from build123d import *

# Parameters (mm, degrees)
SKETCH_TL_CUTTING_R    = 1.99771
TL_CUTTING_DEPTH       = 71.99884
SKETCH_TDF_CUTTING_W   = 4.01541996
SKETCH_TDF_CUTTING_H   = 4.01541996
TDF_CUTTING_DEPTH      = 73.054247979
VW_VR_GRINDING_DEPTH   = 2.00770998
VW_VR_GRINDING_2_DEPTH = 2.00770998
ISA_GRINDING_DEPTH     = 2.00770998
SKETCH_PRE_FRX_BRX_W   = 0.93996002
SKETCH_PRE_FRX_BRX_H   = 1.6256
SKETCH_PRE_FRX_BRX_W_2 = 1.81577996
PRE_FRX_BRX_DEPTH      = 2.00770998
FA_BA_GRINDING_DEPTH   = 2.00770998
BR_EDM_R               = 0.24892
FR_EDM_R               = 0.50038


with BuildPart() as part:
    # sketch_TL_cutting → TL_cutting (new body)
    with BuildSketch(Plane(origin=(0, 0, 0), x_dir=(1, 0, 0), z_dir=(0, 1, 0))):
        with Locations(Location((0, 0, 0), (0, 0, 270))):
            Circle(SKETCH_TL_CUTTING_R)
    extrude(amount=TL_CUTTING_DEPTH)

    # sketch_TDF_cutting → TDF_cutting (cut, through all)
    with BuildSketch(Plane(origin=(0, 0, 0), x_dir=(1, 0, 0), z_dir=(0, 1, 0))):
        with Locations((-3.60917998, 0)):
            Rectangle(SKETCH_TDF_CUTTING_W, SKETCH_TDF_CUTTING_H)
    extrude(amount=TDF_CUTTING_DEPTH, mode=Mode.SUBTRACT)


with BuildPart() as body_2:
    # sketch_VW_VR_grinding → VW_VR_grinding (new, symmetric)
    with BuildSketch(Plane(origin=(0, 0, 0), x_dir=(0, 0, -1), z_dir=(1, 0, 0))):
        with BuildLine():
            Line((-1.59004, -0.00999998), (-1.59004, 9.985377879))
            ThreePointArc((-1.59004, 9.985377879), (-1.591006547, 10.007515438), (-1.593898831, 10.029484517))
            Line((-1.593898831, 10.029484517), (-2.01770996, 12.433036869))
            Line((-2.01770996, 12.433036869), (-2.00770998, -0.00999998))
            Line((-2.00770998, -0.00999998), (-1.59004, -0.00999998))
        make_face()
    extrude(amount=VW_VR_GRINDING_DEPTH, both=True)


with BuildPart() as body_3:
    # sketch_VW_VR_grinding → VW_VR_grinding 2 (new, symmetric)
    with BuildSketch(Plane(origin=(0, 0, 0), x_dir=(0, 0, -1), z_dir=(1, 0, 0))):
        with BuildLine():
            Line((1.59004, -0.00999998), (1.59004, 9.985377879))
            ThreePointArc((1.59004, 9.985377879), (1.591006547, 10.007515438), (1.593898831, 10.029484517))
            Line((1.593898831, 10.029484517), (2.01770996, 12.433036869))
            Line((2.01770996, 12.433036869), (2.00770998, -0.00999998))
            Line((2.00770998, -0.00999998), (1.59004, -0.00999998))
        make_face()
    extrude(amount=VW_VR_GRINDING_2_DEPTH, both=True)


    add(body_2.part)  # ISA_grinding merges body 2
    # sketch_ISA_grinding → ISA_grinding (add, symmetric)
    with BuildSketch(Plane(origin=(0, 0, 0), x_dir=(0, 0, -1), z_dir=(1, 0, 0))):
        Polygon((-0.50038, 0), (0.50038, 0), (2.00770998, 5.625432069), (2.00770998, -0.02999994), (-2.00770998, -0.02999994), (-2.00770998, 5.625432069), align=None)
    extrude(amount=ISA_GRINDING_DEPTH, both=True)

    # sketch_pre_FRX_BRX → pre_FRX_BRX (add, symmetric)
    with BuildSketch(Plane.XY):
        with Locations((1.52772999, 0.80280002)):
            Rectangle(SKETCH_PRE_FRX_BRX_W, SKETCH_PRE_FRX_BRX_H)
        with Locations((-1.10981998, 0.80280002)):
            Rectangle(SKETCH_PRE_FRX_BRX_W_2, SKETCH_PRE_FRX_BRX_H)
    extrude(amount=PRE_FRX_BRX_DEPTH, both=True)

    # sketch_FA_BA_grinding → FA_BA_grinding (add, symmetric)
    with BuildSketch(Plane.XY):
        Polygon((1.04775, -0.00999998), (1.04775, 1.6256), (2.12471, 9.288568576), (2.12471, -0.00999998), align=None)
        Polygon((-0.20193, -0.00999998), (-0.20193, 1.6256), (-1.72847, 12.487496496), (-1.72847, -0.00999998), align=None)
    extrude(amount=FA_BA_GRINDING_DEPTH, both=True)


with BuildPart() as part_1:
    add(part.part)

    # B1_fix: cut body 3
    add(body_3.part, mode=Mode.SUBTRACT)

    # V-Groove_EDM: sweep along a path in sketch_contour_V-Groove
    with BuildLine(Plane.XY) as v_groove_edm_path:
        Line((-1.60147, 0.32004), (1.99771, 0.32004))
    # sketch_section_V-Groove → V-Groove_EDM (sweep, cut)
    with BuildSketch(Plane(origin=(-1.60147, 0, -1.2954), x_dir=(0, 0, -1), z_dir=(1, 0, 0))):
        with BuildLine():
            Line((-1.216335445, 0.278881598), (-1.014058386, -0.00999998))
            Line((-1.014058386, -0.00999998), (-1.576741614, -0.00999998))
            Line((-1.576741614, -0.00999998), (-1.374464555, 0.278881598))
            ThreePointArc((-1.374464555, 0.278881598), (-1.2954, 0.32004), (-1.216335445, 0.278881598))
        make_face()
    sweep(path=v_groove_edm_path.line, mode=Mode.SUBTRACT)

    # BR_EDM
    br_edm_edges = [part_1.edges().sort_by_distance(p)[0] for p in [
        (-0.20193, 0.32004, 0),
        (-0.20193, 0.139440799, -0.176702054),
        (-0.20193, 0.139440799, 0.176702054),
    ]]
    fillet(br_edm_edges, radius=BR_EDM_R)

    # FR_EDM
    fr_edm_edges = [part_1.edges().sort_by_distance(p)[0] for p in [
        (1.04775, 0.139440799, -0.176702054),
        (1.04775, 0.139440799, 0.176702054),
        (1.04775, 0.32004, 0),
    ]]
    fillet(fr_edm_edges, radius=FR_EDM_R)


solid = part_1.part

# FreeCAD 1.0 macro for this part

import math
import FreeCAD as App
import Part
import Sketcher

V = App.Vector
Q = App.Units.Quantity


def edges_at(feature, points):
    """Names of the edges that pass closest to the given points."""
    edges = feature.Shape.Edges
    near = lambda p: min(range(len(edges)), key=lambda i: edges[i].distToShape(Part.Vertex(*p))[0])
    return sorted({f"Edge{near(p) + 1}" for p in points})

doc = App.newDocument("Part")
params = doc.addObject("Spreadsheet::Sheet", "Params")
for row, (alias, value) in enumerate([
    ("pad1_length", "2.8346 in"),
    ("sketch3_radius", "0.01 in"),
    ("pad2_length", "4.01542 mm"),
    ("sketch4_radius", "0.01 in"),
    ("pad3_length", "4.01542 mm"),
    ("pad4_length", "4.01542 mm"),
    ("sketch6_height", "0.064 in"),
    ("pad5_length", "4.01542 mm"),
    ("pad6_length", "4.01542 mm"),
    ("fillet_radius", "0.0098 in"),
    ("fillet2_radius", "0.0197 in"),
], start=1):
    params.set(f"A{row}", alias)
    params.set(f"B{row}", "=" + value)
    params.setAlias(f"B{row}", alias)

body = doc.addObject("PartDesign::Body", "Body")

sketch1 = doc.addObject("Sketcher::SketchObject", "Sketch")
body.addObject(sketch1)
sketch1.AttachmentSupport = (doc.XZ_Plane, [""])
sketch1.MapMode = "FlatFace"
sketch1.addGeometry(Part.Circle(V(0, 0, 0), V(0, 0, 1), 1.99771), False)
sketch1.addConstraint([
    Sketcher.Constraint("Coincident", 0, 3, -1, 1),
    Sketcher.Constraint("Diameter", 0, Q("0.1573 in")),
])
pad1 = doc.addObject("PartDesign::Pad", "Pad")
body.addObject(pad1)
pad1.Profile = sketch1
pad1.setExpression("Length", "Params.pad1_length")
pad1.Reversed = True

sketch2 = doc.addObject("Sketcher::SketchObject", "Sketch001")
body.addObject(sketch2)
sketch2.AttachmentSupport = (doc.XZ_Plane, [""])
sketch2.MapMode = "FlatFace"
sketch2.addGeometry([
    Part.LineSegment(V(-5.61689, -2.00771, 0), V(-5.61689, 2.00771, 0)),
    Part.LineSegment(V(-5.61689, 2.00771, 0), V(-1.60147, 2.00771, 0)),
    Part.LineSegment(V(-1.60147, 2.00771, 0), V(-1.60147, -2.00771, 0)),
    Part.LineSegment(V(-1.60147, -2.00771, 0), V(-5.61689, -2.00771, 0)),
], False)
sketch2.addConstraint([
    Sketcher.Constraint("Coincident", 0, 2, 1, 1),
    Sketcher.Constraint("Coincident", 1, 2, 2, 1),
    Sketcher.Constraint("Coincident", 2, 2, 3, 1),
    Sketcher.Constraint("Coincident", 3, 2, 0, 1),
    Sketcher.Constraint("Vertical", 0),
    Sketcher.Constraint("Horizontal", 1),
    Sketcher.Constraint("Vertical", 2),
    Sketcher.Constraint("Horizontal", 3),
    Sketcher.Constraint("Equal", 3, 0),
    Sketcher.Constraint("DistanceX", 1, 1, 1, 2, Q("4.01542 mm")),
    Sketcher.Constraint("DistanceX", 0, 2, -1, 1, Q("5.61689 mm")),
    Sketcher.Constraint("DistanceY", -1, 1, 0, 2, Q("2.00771 mm")),
])
pocket1 = doc.addObject("PartDesign::Pocket", "Pocket")
body.addObject(pocket1)
pocket1.Profile = sketch2
pocket1.Type = "ThroughAll"
body2 = doc.addObject("PartDesign::Body", "Body001")

sketch3 = doc.addObject("Sketcher::SketchObject", "Sketch002")
body2.addObject(sketch3)
sketch3.AttachmentSupport = (doc.getObject("YZ_Plane001"), [""])
sketch3.MapMode = "FlatFace"
sketch3.addGeometry([
    Part.LineSegment(V(-0.01, 1.59004, 0), V(9.985378, 1.59004, 0)),
    Part.ArcOfCircle(Part.Circle(V(9.985378, 1.84404, 0), V(0, 0, 1), 0.254), math.radians(-89.999999), math.radians(-80.000001)),
    Part.LineSegment(V(10.029485, 1.593899, 0), V(12.433037, 2.01771, 0)),
    Part.LineSegment(V(12.433037, 2.01771, 0), V(-0.01, 2.00771, 0)),
    Part.LineSegment(V(-0.01, 2.00771, 0), V(-0.01, 1.59004, 0)),
], False)
sketch3.addConstraint([
    Sketcher.Constraint("Tangent", 0, 2, 1, 1),
    Sketcher.Constraint("Tangent", 1, 2, 2, 1),
    Sketcher.Constraint("Coincident", 2, 2, 3, 1),
    Sketcher.Constraint("Coincident", 3, 2, 4, 1),
    Sketcher.Constraint("Coincident", 4, 2, 0, 1),
    Sketcher.Constraint("Horizontal", 0),
    Sketcher.Constraint("Vertical", 4),
    Sketcher.Constraint("Radius", 1, Q("0.01 in")),
    Sketcher.Constraint("Angle", 2, Q("10 deg")),
    Sketcher.Constraint("DistanceY", -1, 1, 1, 3, Q("0.0726 in")),
    Sketcher.Constraint("DistanceY", 4, 2, 4, 1, Q("0.41767 mm")),
    Sketcher.Constraint("DistanceX", 3, 2, -1, 1, Q("0.01 mm")),
    Sketcher.Constraint("DistanceY", 3, 2, 2, 2, Q("0.01 mm")),
    Sketcher.Constraint("Distance", 3, Q("12.443041 mm")),
])
sketch3.setExpression("Constraints[7]", "Params.sketch3_radius")
pad2 = doc.addObject("PartDesign::Pad", "Pad001")
body2.addObject(pad2)
pad2.Profile = sketch3
pad2.setExpression("Length", "Params.pad2_length")
pad2.Midplane = True
body3 = doc.addObject("PartDesign::Body", "Body002")
body3.AllowCompound = True

sketch4 = doc.addObject("Sketcher::SketchObject", "Sketch003")
body3.addObject(sketch4)
sketch4.AttachmentSupport = (doc.getObject("YZ_Plane002"), [""])
sketch4.MapMode = "FlatFace"
sketch4.addGeometry([
    Part.LineSegment(V(9.985378, -1.59004, 0), V(-0.01, -1.59004, 0)),
    Part.LineSegment(V(-0.01, -1.59004, 0), V(-0.01, -2.00771, 0)),
    Part.LineSegment(V(-0.01, -2.00771, 0), V(12.433037, -2.01771, 0)),
    Part.LineSegment(V(12.433037, -2.01771, 0), V(10.029485, -1.593899, 0)),
    Part.ArcOfCircle(Part.Circle(V(9.985378, -1.84404, 0), V(0, 0, 1), 0.254), math.radians(80.000001), math.radians(89.999999)),
], False)
sketch4.addConstraint([
    Sketcher.Constraint("Coincident", 0, 2, 1, 1),
    Sketcher.Constraint("Coincident", 1, 2, 2, 1),
    Sketcher.Constraint("Coincident", 2, 2, 3, 1),
    Sketcher.Constraint("Tangent", 3, 2, 4, 1),
    Sketcher.Constraint("Tangent", 4, 2, 0, 1),
    Sketcher.Constraint("Horizontal", 0),
    Sketcher.Constraint("Vertical", 1),
    Sketcher.Constraint("Radius", 4, Q("0.01 in")),
    Sketcher.Constraint("Angle", 3, Q("170 deg")),
    Sketcher.Constraint("DistanceY", 4, 3, -1, 1, Q("0.0726 in")),
    Sketcher.Constraint("DistanceY", 1, 2, 1, 1, Q("0.41767 mm")),
    Sketcher.Constraint("DistanceX", 0, 2, -1, 1, Q("0.01 mm")),
    Sketcher.Constraint("DistanceY", 2, 2, 1, 2, Q("0.01 mm")),
    Sketcher.Constraint("Distance", 2, Q("12.443041 mm")),
])
sketch4.setExpression("Constraints[7]", "Params.sketch4_radius")
pad3 = doc.addObject("PartDesign::Pad", "Pad002")
body3.addObject(pad3)
pad3.Profile = sketch4
pad3.setExpression("Length", "Params.pad3_length")
pad3.Midplane = True
doc.recompute()

boolean = doc.addObject("PartDesign::Boolean", "Boolean")
body3.addObject(boolean)
boolean.Type = "Fuse"
boolean.addObjects([body2])

sketch5 = doc.addObject("Sketcher::SketchObject", "Sketch004")
body3.addObject(sketch5)
sketch5.AttachmentSupport = (doc.getObject("YZ_Plane002"), [""])
sketch5.MapMode = "FlatFace"
sketch5.addGeometry([
    Part.LineSegment(V(0, -0.50038, 0), V(0, 0.50038, 0)),
    Part.LineSegment(V(0, 0.50038, 0), V(5.625432, 2.00771, 0)),
    Part.LineSegment(V(5.625432, 2.00771, 0), V(-0.03, 2.00771, 0)),
    Part.LineSegment(V(-0.03, 2.00771, 0), V(-0.03, -2.00771, 0)),
    Part.LineSegment(V(-0.03, -2.00771, 0), V(5.625432, -2.00771, 0)),
    Part.LineSegment(V(5.625432, -2.00771, 0), V(0, -0.50038, 0)),
], False)
sketch5.addConstraint([
    Sketcher.Constraint("Coincident", 0, 2, 1, 1),
    Sketcher.Constraint("Coincident", 1, 2, 2, 1),
    Sketcher.Constraint("Coincident", 2, 2, 3, 1),
    Sketcher.Constraint("Coincident", 3, 2, 4, 1),
    Sketcher.Constraint("Coincident", 4, 2, 5, 1),
    Sketcher.Constraint("Coincident", 5, 2, 0, 1),
    Sketcher.Constraint("Vertical", 0),
    Sketcher.Constraint("Horizontal", 2),
    Sketcher.Constraint("Vertical", 3),
    Sketcher.Constraint("Horizontal", 4),
    Sketcher.Constraint("Symmetric", 0, 2, 5, 2, -1, 1),
    Sketcher.Constraint("Symmetric", 1, 2, 4, 2, -1),
    Sketcher.Constraint("Angle", 1, Q("15 deg")),
    Sketcher.Constraint("DistanceY", 0, 1, 0, 2, Q("0.0394 in")),
    Sketcher.Constraint("DistanceY", 3, 2, 3, 1, Q("4.01542 mm")),
    Sketcher.Constraint("DistanceX", 2, 2, -1, 1, Q("0.03 mm")),
])
pad4 = doc.addObject("PartDesign::Pad", "Pad003")
body3.addObject(pad4)
pad4.Profile = sketch5
pad4.setExpression("Length", "Params.pad4_length")
pad4.Midplane = True

sketch6 = doc.addObject("Sketcher::SketchObject", "Sketch005")
body3.addObject(sketch6)
sketch6.AttachmentSupport = (doc.getObject("XY_Plane002"), [""])
sketch6.MapMode = "FlatFace"
sketch6.addGeometry([
    Part.LineSegment(V(1.05775, 1.6156, 0), V(1.05775, -0.01, 0)),
    Part.LineSegment(V(1.05775, -0.01, 0), V(1.99771, -0.01, 0)),
    Part.LineSegment(V(1.99771, -0.01, 0), V(1.99771, 1.6156, 0)),
    Part.LineSegment(V(1.99771, 1.6156, 0), V(1.05775, 1.6156, 0)),
    Part.LineSegment(V(-2.01771, 1.6156, 0), V(-2.01771, -0.01, 0)),
    Part.LineSegment(V(-2.01771, -0.01, 0), V(-0.20193, -0.01, 0)),
    Part.LineSegment(V(-0.20193, -0.01, 0), V(-0.20193, 1.6156, 0)),
    Part.LineSegment(V(-0.20193, 1.6156, 0), V(-2.01771, 1.6156, 0)),
], False)
sketch6.addConstraint([
    Sketcher.Constraint("Coincident", 0, 2, 1, 1),
    Sketcher.Constraint("Coincident", 1, 2, 2, 1),
    Sketcher.Constraint("Coincident", 2, 2, 3, 1),
    Sketcher.Constraint("Coincident", 3, 2, 0, 1),
    Sketcher.Constraint("Coincident", 4, 2, 5, 1),
    Sketcher.Constraint("Coincident", 5, 2, 6, 1),
    Sketcher.Constraint("Coincident", 6, 2, 7, 1),
    Sketcher.Constraint("Coincident", 7, 2, 4, 1),
    Sketcher.Constraint("Vertical", 0),
    Sketcher.Constraint("Horizontal", 1),
    Sketcher.Constraint("Vertical", 2),
    Sketcher.Constraint("Horizontal", 3),
    Sketcher.Constraint("Vertical", 4),
    Sketcher.Constraint("Horizontal", 5),
    Sketcher.Constraint("Vertical", 6),
    Sketcher.Constraint("Horizontal", 7),
    Sketcher.Constraint("Horizontal", 1, 2, 4, 2),
    Sketcher.Constraint("Horizontal", 3, 2, 6, 2),
    Sketcher.Constraint("DistanceY", 0, 2, 0, 1, Q("0.064 in")),
    Sketcher.Constraint("DistanceX", 5, 2, 1, 2, Q("0.0866 in")),
    Sketcher.Constraint("DistanceX", 1, 1, 1, 2, Q("0.93996 mm")),
    Sketcher.Constraint("DistanceX", 5, 1, 5, 2, Q("1.81578 mm")),
    Sketcher.Constraint("DistanceY", 0, 2, -1, 1, Q("0.01 mm")),
    Sketcher.Constraint("DistanceX", -1, 1, 0, 2, Q("1.05775 mm")),
])
sketch6.setExpression("Constraints[18]", "Params.sketch6_height")
pad5 = doc.addObject("PartDesign::Pad", "Pad004")
body3.addObject(pad5)
pad5.Profile = sketch6
pad5.setExpression("Length", "Params.pad5_length")
pad5.Midplane = True

sketch7 = doc.addObject("Sketcher::SketchObject", "Sketch006")
body3.addObject(sketch7)
sketch7.AttachmentSupport = (doc.getObject("XY_Plane002"), [""])
sketch7.MapMode = "FlatFace"
sketch7.addGeometry([
    Part.LineSegment(V(1.04775, 1.6256, 0), V(1.04775, -0.01, 0)),
    Part.LineSegment(V(1.04775, -0.01, 0), V(2.12471, -0.01, 0)),
    Part.LineSegment(V(2.12471, -0.01, 0), V(2.12471, 9.288569, 0)),
    Part.LineSegment(V(2.12471, 9.288569, 0), V(1.04775, 1.6256, 0)),
    Part.LineSegment(V(-0.20193, -0.01, 0), V(-0.20193, 1.6256, 0)),
    Part.LineSegment(V(-0.20193, 1.6256, 0), V(-1.72847, 12.487496, 0)),
    Part.LineSegment(V(-1.72847, 12.487496, 0), V(-1.72847, -0.01, 0)),
    Part.LineSegment(V(-1.72847, -0.01, 0), V(-0.20193, -0.01, 0)),
], False)
sketch7.addConstraint([
    Sketcher.Constraint("Coincident", 0, 2, 1, 1),
    Sketcher.Constraint("Coincident", 1, 2, 2, 1),
    Sketcher.Constraint("Coincident", 2, 2, 3, 1),
    Sketcher.Constraint("Coincident", 3, 2, 0, 1),
    Sketcher.Constraint("Coincident", 4, 2, 5, 1),
    Sketcher.Constraint("Coincident", 5, 2, 6, 1),
    Sketcher.Constraint("Coincident", 6, 2, 7, 1),
    Sketcher.Constraint("Coincident", 7, 2, 4, 1),
    Sketcher.Constraint("Vertical", 0),
    Sketcher.Constraint("Horizontal", 1),
    Sketcher.Constraint("Vertical", 2),
    Sketcher.Constraint("Vertical", 4),
    Sketcher.Constraint("Vertical", 6),
    Sketcher.Constraint("Horizontal", 7),
    Sketcher.Constraint("Horizontal", 3, 2, 4, 2),
    Sketcher.Constraint("Horizontal", 1, 2, 6, 2),
    Sketcher.Constraint("Angle", 3, Q("-98 deg")),
    Sketcher.Constraint("Angle", 5, Q("98 deg")),
    Sketcher.Constraint("DistanceX", 1, 1, 1, 2, Q("0.0424 in")),
    Sketcher.Constraint("DistanceX", 7, 1, 7, 2, Q("0.0601 in")),
    Sketcher.Constraint("DistanceY", -1, 1, 3, 2, Q("0.064 in")),
    Sketcher.Constraint("DistanceY", 0, 2, 0, 1, Q("1.6356 mm")),
    Sketcher.Constraint("DistanceX", 4, 2, 3, 2, Q("0.0492 in")),
    Sketcher.Constraint("DistanceX", -1, 1, 0, 2, Q("1.04775 mm")),
])
pad6 = doc.addObject("PartDesign::Pad", "Pad005")
body3.addObject(pad6)
pad6.Profile = sketch7
pad6.setExpression("Length", "Params.pad6_length")
pad6.Midplane = True
doc.recompute()

boolean2 = doc.addObject("PartDesign::Boolean", "Boolean001")
body.addObject(boolean2)
boolean2.Type = "Cut"
boolean2.addObjects([body3])

sketch8 = doc.addObject("Sketcher::SketchObject", "Sketch007")
body.addObject(sketch8)
sketch8.AttachmentSupport = (doc.YZ_Plane, [""])
sketch8.MapMode = "FlatFace"
sketch8.AttachmentOffset = App.Placement(V(0, 0, -1.60147), App.Rotation())
sketch8.addGeometry([
    Part.LineSegment(V(-0.01, -0.281342, 0), V(0.278882, -0.079065, 0)),
    Part.ArcOfCircle(Part.Circle(V(0.22352, 0, 0), V(0, 0, 1), 0.09652), math.radians(-55), math.radians(55)),
    Part.LineSegment(V(0.278882, 0.079065, 0), V(-0.01, 0.281342, 0)),
    Part.LineSegment(V(-0.01, 0.281342, 0), V(-0.01, -0.281342, 0)),
], False)
sketch8.addConstraint([
    Sketcher.Constraint("Tangent", 0, 2, 1, 1),
    Sketcher.Constraint("Tangent", 1, 2, 2, 1),
    Sketcher.Constraint("Coincident", 2, 2, 3, 1),
    Sketcher.Constraint("Coincident", 3, 2, 0, 1),
    Sketcher.Constraint("Vertical", 3),
    Sketcher.Constraint("Symmetric", 0, 2, 1, 2, -1),
    Sketcher.Constraint("Angle", 0, Q("35 deg")),
    Sketcher.Constraint("Radius", 1, Q("0.0038 in")),
    Sketcher.Constraint("DistanceX", -1, 1, 1, 3, Q("0.0088 in")),
    Sketcher.Constraint("DistanceX", 2, 2, -1, 1, Q("0.01 mm")),
])

sketch9 = doc.addObject("Sketcher::SketchObject", "Sketch008")
body.addObject(sketch9)
sketch9.AttachmentSupport = (doc.XY_Plane, [""])
sketch9.MapMode = "FlatFace"
sketch9.addGeometry(Part.LineSegment(V(-1.60147, 0.32004, 0), V(1.99771, 0.32004, 0)), False)
sketch9.addConstraint([
    Sketcher.Constraint("Horizontal", 0),
    Sketcher.Constraint("DistanceX", 0, 1, 0, 2, Q("0.1417 in")),
    Sketcher.Constraint("DistanceY", -1, 1, 0, 1, Q("0.0126 in")),
    Sketcher.Constraint("DistanceX", 0, 1, -1, 1, Q("1.60147 mm")),
])
doc.recompute()

subtractivepipe = doc.addObject("PartDesign::SubtractivePipe", "SubtractivePipe")
body.addObject(subtractivepipe)
subtractivepipe.Profile = sketch8
subtractivepipe.Spine = (sketch9, ["Edge1"])
doc.recompute()

fillet = doc.addObject("PartDesign::Fillet", "Fillet")
body.addObject(fillet)
fillet.Base = (subtractivepipe, edges_at(subtractivepipe, [(-0.202, 0.32, 0), (-0.202, 0.139, -0.177), (-0.202, 0.139, 0.177)]))
fillet.setExpression("Radius", "Params.fillet_radius")
doc.recompute()

fillet2 = doc.addObject("PartDesign::Fillet", "Fillet001")
body.addObject(fillet2)
fillet2.Base = (fillet, edges_at(fillet, [(1.048, 0.139, -0.177), (1.048, 0.139, 0.177), (1.048, 0.32, 0)]))
fillet2.setExpression("Radius", "Params.fillet2_radius")

doc.recompute()
